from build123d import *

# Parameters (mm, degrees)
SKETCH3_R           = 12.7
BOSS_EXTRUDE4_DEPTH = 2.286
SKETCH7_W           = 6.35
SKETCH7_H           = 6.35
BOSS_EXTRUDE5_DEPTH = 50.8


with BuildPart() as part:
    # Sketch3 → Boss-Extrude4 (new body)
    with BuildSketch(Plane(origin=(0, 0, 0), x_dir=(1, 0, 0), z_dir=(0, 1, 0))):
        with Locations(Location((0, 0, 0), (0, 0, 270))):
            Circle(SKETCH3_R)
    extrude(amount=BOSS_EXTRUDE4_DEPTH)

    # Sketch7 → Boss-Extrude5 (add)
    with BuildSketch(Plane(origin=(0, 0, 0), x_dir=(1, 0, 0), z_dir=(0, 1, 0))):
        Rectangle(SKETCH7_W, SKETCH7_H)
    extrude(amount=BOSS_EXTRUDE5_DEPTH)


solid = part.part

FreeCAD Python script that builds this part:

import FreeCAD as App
import Part
import Sketcher
Q = App.Units.Quantity

doc = App.newDocument("Part")
body = doc.addObject("PartDesign::Body", "Body")

# Sketch on XZ plane
sketch1 = doc.addObject("Sketcher::SketchObject", "Sketch")
body.addObject(sketch1)
sketch1.AttachmentSupport = (doc.XZ_Plane, [""])
sketch1.MapMode = "FlatFace"
sketch1.addGeometry(Part.Circle(App.Vector(0, 0, 0), App.Vector(0, 0, 1), 13), False)
sketch1.addConstraint(Sketcher.Constraint("Coincident", 0, 3, -1, 1))
sketch1.addConstraint(Sketcher.Constraint("Diameter", 0, Q("1 in")))
pad1 = doc.addObject("PartDesign::Pad", "Pad")
body.addObject(pad1)
pad1.Profile = sketch1
pad1.Length = Q("0.09 in")
pad1.Reversed = True

# Sketch on XZ plane
sketch2 = doc.addObject("Sketcher::SketchObject", "Sketch001")
body.addObject(sketch2)
sketch2.AttachmentSupport = (doc.XZ_Plane, [""])
sketch2.MapMode = "FlatFace"
sketch2.addGeometry(Part.LineSegment(App.Vector(-3, -3, 0), App.Vector(-3, 3, 0)), False)
sketch2.addGeometry(Part.LineSegment(App.Vector(-3, 3, 0), App.Vector(3, 3, 0)), False)
sketch2.addGeometry(Part.LineSegment(App.Vector(3, 3, 0), App.Vector(3, -3, 0)), False)
sketch2.addGeometry(Part.LineSegment(App.Vector(3, -3, 0), App.Vector(-3, -3, 0)), False)
sketch2.addConstraint(Sketcher.Constraint("Coincident", 0, 2, 1, 1))
sketch2.addConstraint(Sketcher.Constraint("Coincident", 1, 2, 2, 1))
sketch2.addConstraint(Sketcher.Constraint("Coincident", 2, 2, 3, 1))
sketch2.addConstraint(Sketcher.Constraint("Coincident", 3, 2, 0, 1))
sketch2.addConstraint(Sketcher.Constraint("Vertical", 0))
sketch2.addConstraint(Sketcher.Constraint("Horizontal", 1))
sketch2.addConstraint(Sketcher.Constraint("Vertical", 2))
sketch2.addConstraint(Sketcher.Constraint("Horizontal", 3))
sketch2.addConstraint(Sketcher.Constraint("Symmetric", 0, 2, 2, 2, -1, 1))
sketch2.addConstraint(Sketcher.Constraint("Equal", 3, 0))
sketch2.addConstraint(Sketcher.Constraint("DistanceX", 1, 1, 1, 2, Q("0.25 in")))
pad2 = doc.addObject("PartDesign::Pad", "Pad001")
body.addObject(pad2)
pad2.Profile = sketch2
pad2.Length = Q("2 in")
pad2.Reversed = True

doc.recompute()
